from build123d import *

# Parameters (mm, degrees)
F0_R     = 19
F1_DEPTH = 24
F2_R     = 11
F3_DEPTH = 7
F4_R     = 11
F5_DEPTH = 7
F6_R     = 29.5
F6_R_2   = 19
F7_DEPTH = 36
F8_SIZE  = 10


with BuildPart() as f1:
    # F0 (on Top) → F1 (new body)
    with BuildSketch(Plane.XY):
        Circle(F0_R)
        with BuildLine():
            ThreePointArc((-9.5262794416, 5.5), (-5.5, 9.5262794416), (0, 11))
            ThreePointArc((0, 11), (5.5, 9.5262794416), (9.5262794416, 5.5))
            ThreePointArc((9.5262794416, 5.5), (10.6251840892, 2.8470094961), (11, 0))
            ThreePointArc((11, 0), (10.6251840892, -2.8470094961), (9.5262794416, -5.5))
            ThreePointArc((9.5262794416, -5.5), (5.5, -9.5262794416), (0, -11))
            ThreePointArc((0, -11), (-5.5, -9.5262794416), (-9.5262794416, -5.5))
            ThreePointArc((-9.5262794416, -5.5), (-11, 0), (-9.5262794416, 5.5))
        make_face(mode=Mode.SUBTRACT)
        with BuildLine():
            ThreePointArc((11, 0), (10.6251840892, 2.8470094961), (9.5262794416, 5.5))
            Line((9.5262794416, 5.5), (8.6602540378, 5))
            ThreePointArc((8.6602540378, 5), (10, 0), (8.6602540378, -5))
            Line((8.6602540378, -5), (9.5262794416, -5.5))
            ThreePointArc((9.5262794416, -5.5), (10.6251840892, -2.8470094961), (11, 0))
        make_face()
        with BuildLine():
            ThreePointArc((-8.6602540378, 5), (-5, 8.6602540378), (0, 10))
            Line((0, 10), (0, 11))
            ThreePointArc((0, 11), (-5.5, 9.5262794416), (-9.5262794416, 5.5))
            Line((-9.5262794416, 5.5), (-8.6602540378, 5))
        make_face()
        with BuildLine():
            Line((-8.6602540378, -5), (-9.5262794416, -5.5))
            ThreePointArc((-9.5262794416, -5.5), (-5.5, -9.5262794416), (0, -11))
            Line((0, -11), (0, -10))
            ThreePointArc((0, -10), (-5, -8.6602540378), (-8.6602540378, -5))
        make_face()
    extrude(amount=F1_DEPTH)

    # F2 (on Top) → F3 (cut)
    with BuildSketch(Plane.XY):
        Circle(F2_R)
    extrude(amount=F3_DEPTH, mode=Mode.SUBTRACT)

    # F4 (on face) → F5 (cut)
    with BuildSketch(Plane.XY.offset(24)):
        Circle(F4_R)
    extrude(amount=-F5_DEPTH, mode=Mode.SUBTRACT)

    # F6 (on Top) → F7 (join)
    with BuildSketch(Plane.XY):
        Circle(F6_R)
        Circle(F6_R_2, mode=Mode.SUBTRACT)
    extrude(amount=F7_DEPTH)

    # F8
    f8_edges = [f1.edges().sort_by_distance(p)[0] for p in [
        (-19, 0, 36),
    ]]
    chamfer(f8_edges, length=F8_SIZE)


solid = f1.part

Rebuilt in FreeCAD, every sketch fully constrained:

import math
import FreeCAD as App
import Part
import Sketcher

V = App.Vector
Q = App.Units.Quantity


def edges_at(feature, points):
    """Names of the edges that pass closest to the given points."""
    edges = feature.Shape.Edges
    near = lambda p: min(range(len(edges)), key=lambda i: edges[i].distToShape(Part.Vertex(*p))[0])
    return sorted({f"Edge{near(p) + 1}" for p in points})

doc = App.newDocument("Part")
body = doc.addObject("PartDesign::Body", "Body")

sketch1 = body.newObject("Sketcher::SketchObject", "Sketch")
sketch1.AttachmentSupport = (doc.getObject("XY_Plane"), [""])
sketch1.MapMode = "FlatFace"
sketch1.addGeometry(Part.Circle(V(0, 0, 0), V(0, 0, 1), 19), False)
sketch1.addGeometry(Part.ArcOfCircle(Part.Circle(V(0, 0, 0), V(0, 0, 1), 11), math.radians(150), math.radians(210)), False)
sketch1.addGeometry(Part.LineSegment(V(-9.5, 5.5, 0), V(-8.7, 5, 0)), False)
sketch1.addGeometry(Part.ArcOfCircle(Part.Circle(V(0, 0, 0), V(0, 0, 1), 10), math.radians(90), math.radians(150)), False)
sketch1.addGeometry(Part.LineSegment(V(0, 10, 0), V(0, 11, 0)), False)
sketch1.addGeometry(Part.ArcOfCircle(Part.Circle(V(0, 0, 0), V(0, 0, 1), 11), math.radians(30), math.radians(90)), False)
sketch1.addGeometry(Part.LineSegment(V(9.5, 5.5, 0), V(8.7, 5, 0)), False)
sketch1.addGeometry(Part.ArcOfCircle(Part.Circle(V(0, 0, 0), V(0, 0, 1), 10), math.radians(-30), math.radians(30)), False)
sketch1.addGeometry(Part.LineSegment(V(8.7, -5, 0), V(9.5, -5.5, 0)), False)
sketch1.addGeometry(Part.ArcOfCircle(Part.Circle(V(0, 0, 0), V(0, 0, 1), 11), math.radians(-90), math.radians(-30)), False)
sketch1.addGeometry(Part.LineSegment(V(0, -11, 0), V(0, -10, 0)), False)
sketch1.addGeometry(Part.ArcOfCircle(Part.Circle(V(0, 0, 0), V(0, 0, 1), 10), math.radians(-150), math.radians(-90)), False)
sketch1.addGeometry(Part.LineSegment(V(-8.7, -5, 0), V(-9.5, -5.5, 0)), False)
sketch1.addConstraint(Sketcher.Constraint("Coincident", 1, 1, 2, 1))
sketch1.addConstraint(Sketcher.Constraint("Coincident", 2, 2, 3, 2))
sketch1.addConstraint(Sketcher.Constraint("Coincident", 3, 1, 4, 1))
sketch1.addConstraint(Sketcher.Constraint("Coincident", 4, 2, 5, 2))
sketch1.addConstraint(Sketcher.Constraint("Coincident", 5, 1, 6, 1))
sketch1.addConstraint(Sketcher.Constraint("Coincident", 6, 2, 7, 2))
sketch1.addConstraint(Sketcher.Constraint("Coincident", 7, 1, 8, 1))
sketch1.addConstraint(Sketcher.Constraint("Coincident", 8, 2, 9, 2))
sketch1.addConstraint(Sketcher.Constraint("Coincident", 9, 1, 10, 1))
sketch1.addConstraint(Sketcher.Constraint("Coincident", 10, 2, 11, 2))
sketch1.addConstraint(Sketcher.Constraint("Coincident", 11, 1, 12, 1))
sketch1.addConstraint(Sketcher.Constraint("Coincident", 12, 2, 1, 2))
sketch1.addConstraint(Sketcher.Constraint("Vertical", 4))
sketch1.addConstraint(Sketcher.Constraint("Vertical", 10))
sketch1.addConstraint(Sketcher.Constraint("Coincident", 0, 3, -1, 1))
sketch1.addConstraint(Sketcher.Constraint("Coincident", 1, 3, -1, 1))
sketch1.addConstraint(Sketcher.Constraint("Coincident", 3, 3, -1, 1))
sketch1.addConstraint(Sketcher.Constraint("Coincident", 5, 3, -1, 1))
sketch1.addConstraint(Sketcher.Constraint("Coincident", 7, 3, -1, 1))
sketch1.addConstraint(Sketcher.Constraint("Coincident", 9, 3, -1, 1))
sketch1.addConstraint(Sketcher.Constraint("Coincident", 11, 3, -1, 1))
sketch1.addConstraint(Sketcher.Constraint("Equal", 1, 5))
sketch1.addConstraint(Sketcher.Constraint("Equal", 3, 7))
sketch1.addConstraint(Sketcher.Constraint("Equal", 5, 9))
sketch1.addConstraint(Sketcher.Constraint("Equal", 7, 11))
sketch1.addConstraint(Sketcher.Constraint("PointOnObject", 3, 1, -2))
sketch1.addConstraint(Sketcher.Constraint("PointOnObject", 9, 1, -2))
sketch1.addConstraint(Sketcher.Constraint("Parallel", 2, 8))
sketch1.addConstraint(Sketcher.Constraint("Parallel", 6, 12))
sketch1.addConstraint(Sketcher.Constraint("Horizontal", 1, 1, 5, 1))
sketch1.addConstraint(Sketcher.Constraint("Horizontal", 2, 2, 6, 2))
sketch1.addConstraint(Sketcher.Constraint("Horizontal", 7, 1, 11, 1))
sketch1.addConstraint(Sketcher.Constraint("Vertical", 6, 2, 7, 1))
sketch1.addConstraint(Sketcher.Constraint("Diameter", 0, Q("38 mm")))
sketch1.addConstraint(Sketcher.Constraint("Radius", 1, Q("11 mm")))
sketch1.addConstraint(Sketcher.Constraint("Radius", 3, Q("10 mm")))
sketch1.addConstraint(Sketcher.Constraint("Angle", 2, Q("-30 deg")))
sketch1.addConstraint(Sketcher.Constraint("DistanceY", -1, 1, 2, 2, Q("5 mm")))
pad1 = body.newObject("PartDesign::Pad", "Pad")
pad1.Profile = sketch1
pad1.Length = 24

sketch2 = body.newObject("Sketcher::SketchObject", "Sketch001")
sketch2.AttachmentSupport = (doc.getObject("XY_Plane"), [""])
sketch2.MapMode = "FlatFace"
sketch2.addGeometry(Part.Circle(V(0, 0, 0), V(0, 0, 1), 11), False)
sketch2.addConstraint(Sketcher.Constraint("Coincident", 0, 3, -1, 1))
sketch2.addConstraint(Sketcher.Constraint("Diameter", 0, Q("22 mm")))
pocket1 = body.newObject("PartDesign::Pocket", "Pocket")
pocket1.Profile = sketch2
pocket1.Length = 7
pocket1.Reversed = True

sketch3 = body.newObject("Sketcher::SketchObject", "Sketch002")
sketch3.AttachmentSupport = (doc.getObject("XY_Plane"), [""])
sketch3.MapMode = "FlatFace"
sketch3.AttachmentOffset = App.Placement(V(0, 0, 24), App.Rotation())
sketch3.addGeometry(Part.Circle(V(0, 0, 0), V(0, 0, 1), 11), False)
sketch3.addConstraint(Sketcher.Constraint("Coincident", 0, 3, -1, 1))
sketch3.addConstraint(Sketcher.Constraint("Diameter", 0, Q("22 mm")))
pocket2 = body.newObject("PartDesign::Pocket", "Pocket001")
pocket2.Profile = sketch3
pocket2.Length = 7

sketch4 = body.newObject("Sketcher::SketchObject", "Sketch003")
sketch4.AttachmentSupport = (doc.getObject("XY_Plane"), [""])
sketch4.MapMode = "FlatFace"
sketch4.addGeometry(Part.Circle(V(0, 0, 0), V(0, 0, 1), 30), False)
sketch4.addGeometry(Part.Circle(V(0, 0, 0), V(0, 0, 1), 19), False)
sketch4.addConstraint(Sketcher.Constraint("Coincident", 0, 3, -1, 1))
sketch4.addConstraint(Sketcher.Constraint("Coincident", 1, 3, -1, 1))
sketch4.addConstraint(Sketcher.Constraint("Diameter", 0, Q("59 mm")))
sketch4.addConstraint(Sketcher.Constraint("Diameter", 1, Q("38 mm")))
pad2 = body.newObject("PartDesign::Pad", "Pad001")
pad2.Profile = sketch4
pad2.Length = 36
doc.recompute()

chamfer = body.newObject("PartDesign::Chamfer", "Chamfer")
chamfer.Base = (pad2, edges_at(pad2, [(-19, 0, 36)]))
chamfer.Size = 10

doc.recompute()
